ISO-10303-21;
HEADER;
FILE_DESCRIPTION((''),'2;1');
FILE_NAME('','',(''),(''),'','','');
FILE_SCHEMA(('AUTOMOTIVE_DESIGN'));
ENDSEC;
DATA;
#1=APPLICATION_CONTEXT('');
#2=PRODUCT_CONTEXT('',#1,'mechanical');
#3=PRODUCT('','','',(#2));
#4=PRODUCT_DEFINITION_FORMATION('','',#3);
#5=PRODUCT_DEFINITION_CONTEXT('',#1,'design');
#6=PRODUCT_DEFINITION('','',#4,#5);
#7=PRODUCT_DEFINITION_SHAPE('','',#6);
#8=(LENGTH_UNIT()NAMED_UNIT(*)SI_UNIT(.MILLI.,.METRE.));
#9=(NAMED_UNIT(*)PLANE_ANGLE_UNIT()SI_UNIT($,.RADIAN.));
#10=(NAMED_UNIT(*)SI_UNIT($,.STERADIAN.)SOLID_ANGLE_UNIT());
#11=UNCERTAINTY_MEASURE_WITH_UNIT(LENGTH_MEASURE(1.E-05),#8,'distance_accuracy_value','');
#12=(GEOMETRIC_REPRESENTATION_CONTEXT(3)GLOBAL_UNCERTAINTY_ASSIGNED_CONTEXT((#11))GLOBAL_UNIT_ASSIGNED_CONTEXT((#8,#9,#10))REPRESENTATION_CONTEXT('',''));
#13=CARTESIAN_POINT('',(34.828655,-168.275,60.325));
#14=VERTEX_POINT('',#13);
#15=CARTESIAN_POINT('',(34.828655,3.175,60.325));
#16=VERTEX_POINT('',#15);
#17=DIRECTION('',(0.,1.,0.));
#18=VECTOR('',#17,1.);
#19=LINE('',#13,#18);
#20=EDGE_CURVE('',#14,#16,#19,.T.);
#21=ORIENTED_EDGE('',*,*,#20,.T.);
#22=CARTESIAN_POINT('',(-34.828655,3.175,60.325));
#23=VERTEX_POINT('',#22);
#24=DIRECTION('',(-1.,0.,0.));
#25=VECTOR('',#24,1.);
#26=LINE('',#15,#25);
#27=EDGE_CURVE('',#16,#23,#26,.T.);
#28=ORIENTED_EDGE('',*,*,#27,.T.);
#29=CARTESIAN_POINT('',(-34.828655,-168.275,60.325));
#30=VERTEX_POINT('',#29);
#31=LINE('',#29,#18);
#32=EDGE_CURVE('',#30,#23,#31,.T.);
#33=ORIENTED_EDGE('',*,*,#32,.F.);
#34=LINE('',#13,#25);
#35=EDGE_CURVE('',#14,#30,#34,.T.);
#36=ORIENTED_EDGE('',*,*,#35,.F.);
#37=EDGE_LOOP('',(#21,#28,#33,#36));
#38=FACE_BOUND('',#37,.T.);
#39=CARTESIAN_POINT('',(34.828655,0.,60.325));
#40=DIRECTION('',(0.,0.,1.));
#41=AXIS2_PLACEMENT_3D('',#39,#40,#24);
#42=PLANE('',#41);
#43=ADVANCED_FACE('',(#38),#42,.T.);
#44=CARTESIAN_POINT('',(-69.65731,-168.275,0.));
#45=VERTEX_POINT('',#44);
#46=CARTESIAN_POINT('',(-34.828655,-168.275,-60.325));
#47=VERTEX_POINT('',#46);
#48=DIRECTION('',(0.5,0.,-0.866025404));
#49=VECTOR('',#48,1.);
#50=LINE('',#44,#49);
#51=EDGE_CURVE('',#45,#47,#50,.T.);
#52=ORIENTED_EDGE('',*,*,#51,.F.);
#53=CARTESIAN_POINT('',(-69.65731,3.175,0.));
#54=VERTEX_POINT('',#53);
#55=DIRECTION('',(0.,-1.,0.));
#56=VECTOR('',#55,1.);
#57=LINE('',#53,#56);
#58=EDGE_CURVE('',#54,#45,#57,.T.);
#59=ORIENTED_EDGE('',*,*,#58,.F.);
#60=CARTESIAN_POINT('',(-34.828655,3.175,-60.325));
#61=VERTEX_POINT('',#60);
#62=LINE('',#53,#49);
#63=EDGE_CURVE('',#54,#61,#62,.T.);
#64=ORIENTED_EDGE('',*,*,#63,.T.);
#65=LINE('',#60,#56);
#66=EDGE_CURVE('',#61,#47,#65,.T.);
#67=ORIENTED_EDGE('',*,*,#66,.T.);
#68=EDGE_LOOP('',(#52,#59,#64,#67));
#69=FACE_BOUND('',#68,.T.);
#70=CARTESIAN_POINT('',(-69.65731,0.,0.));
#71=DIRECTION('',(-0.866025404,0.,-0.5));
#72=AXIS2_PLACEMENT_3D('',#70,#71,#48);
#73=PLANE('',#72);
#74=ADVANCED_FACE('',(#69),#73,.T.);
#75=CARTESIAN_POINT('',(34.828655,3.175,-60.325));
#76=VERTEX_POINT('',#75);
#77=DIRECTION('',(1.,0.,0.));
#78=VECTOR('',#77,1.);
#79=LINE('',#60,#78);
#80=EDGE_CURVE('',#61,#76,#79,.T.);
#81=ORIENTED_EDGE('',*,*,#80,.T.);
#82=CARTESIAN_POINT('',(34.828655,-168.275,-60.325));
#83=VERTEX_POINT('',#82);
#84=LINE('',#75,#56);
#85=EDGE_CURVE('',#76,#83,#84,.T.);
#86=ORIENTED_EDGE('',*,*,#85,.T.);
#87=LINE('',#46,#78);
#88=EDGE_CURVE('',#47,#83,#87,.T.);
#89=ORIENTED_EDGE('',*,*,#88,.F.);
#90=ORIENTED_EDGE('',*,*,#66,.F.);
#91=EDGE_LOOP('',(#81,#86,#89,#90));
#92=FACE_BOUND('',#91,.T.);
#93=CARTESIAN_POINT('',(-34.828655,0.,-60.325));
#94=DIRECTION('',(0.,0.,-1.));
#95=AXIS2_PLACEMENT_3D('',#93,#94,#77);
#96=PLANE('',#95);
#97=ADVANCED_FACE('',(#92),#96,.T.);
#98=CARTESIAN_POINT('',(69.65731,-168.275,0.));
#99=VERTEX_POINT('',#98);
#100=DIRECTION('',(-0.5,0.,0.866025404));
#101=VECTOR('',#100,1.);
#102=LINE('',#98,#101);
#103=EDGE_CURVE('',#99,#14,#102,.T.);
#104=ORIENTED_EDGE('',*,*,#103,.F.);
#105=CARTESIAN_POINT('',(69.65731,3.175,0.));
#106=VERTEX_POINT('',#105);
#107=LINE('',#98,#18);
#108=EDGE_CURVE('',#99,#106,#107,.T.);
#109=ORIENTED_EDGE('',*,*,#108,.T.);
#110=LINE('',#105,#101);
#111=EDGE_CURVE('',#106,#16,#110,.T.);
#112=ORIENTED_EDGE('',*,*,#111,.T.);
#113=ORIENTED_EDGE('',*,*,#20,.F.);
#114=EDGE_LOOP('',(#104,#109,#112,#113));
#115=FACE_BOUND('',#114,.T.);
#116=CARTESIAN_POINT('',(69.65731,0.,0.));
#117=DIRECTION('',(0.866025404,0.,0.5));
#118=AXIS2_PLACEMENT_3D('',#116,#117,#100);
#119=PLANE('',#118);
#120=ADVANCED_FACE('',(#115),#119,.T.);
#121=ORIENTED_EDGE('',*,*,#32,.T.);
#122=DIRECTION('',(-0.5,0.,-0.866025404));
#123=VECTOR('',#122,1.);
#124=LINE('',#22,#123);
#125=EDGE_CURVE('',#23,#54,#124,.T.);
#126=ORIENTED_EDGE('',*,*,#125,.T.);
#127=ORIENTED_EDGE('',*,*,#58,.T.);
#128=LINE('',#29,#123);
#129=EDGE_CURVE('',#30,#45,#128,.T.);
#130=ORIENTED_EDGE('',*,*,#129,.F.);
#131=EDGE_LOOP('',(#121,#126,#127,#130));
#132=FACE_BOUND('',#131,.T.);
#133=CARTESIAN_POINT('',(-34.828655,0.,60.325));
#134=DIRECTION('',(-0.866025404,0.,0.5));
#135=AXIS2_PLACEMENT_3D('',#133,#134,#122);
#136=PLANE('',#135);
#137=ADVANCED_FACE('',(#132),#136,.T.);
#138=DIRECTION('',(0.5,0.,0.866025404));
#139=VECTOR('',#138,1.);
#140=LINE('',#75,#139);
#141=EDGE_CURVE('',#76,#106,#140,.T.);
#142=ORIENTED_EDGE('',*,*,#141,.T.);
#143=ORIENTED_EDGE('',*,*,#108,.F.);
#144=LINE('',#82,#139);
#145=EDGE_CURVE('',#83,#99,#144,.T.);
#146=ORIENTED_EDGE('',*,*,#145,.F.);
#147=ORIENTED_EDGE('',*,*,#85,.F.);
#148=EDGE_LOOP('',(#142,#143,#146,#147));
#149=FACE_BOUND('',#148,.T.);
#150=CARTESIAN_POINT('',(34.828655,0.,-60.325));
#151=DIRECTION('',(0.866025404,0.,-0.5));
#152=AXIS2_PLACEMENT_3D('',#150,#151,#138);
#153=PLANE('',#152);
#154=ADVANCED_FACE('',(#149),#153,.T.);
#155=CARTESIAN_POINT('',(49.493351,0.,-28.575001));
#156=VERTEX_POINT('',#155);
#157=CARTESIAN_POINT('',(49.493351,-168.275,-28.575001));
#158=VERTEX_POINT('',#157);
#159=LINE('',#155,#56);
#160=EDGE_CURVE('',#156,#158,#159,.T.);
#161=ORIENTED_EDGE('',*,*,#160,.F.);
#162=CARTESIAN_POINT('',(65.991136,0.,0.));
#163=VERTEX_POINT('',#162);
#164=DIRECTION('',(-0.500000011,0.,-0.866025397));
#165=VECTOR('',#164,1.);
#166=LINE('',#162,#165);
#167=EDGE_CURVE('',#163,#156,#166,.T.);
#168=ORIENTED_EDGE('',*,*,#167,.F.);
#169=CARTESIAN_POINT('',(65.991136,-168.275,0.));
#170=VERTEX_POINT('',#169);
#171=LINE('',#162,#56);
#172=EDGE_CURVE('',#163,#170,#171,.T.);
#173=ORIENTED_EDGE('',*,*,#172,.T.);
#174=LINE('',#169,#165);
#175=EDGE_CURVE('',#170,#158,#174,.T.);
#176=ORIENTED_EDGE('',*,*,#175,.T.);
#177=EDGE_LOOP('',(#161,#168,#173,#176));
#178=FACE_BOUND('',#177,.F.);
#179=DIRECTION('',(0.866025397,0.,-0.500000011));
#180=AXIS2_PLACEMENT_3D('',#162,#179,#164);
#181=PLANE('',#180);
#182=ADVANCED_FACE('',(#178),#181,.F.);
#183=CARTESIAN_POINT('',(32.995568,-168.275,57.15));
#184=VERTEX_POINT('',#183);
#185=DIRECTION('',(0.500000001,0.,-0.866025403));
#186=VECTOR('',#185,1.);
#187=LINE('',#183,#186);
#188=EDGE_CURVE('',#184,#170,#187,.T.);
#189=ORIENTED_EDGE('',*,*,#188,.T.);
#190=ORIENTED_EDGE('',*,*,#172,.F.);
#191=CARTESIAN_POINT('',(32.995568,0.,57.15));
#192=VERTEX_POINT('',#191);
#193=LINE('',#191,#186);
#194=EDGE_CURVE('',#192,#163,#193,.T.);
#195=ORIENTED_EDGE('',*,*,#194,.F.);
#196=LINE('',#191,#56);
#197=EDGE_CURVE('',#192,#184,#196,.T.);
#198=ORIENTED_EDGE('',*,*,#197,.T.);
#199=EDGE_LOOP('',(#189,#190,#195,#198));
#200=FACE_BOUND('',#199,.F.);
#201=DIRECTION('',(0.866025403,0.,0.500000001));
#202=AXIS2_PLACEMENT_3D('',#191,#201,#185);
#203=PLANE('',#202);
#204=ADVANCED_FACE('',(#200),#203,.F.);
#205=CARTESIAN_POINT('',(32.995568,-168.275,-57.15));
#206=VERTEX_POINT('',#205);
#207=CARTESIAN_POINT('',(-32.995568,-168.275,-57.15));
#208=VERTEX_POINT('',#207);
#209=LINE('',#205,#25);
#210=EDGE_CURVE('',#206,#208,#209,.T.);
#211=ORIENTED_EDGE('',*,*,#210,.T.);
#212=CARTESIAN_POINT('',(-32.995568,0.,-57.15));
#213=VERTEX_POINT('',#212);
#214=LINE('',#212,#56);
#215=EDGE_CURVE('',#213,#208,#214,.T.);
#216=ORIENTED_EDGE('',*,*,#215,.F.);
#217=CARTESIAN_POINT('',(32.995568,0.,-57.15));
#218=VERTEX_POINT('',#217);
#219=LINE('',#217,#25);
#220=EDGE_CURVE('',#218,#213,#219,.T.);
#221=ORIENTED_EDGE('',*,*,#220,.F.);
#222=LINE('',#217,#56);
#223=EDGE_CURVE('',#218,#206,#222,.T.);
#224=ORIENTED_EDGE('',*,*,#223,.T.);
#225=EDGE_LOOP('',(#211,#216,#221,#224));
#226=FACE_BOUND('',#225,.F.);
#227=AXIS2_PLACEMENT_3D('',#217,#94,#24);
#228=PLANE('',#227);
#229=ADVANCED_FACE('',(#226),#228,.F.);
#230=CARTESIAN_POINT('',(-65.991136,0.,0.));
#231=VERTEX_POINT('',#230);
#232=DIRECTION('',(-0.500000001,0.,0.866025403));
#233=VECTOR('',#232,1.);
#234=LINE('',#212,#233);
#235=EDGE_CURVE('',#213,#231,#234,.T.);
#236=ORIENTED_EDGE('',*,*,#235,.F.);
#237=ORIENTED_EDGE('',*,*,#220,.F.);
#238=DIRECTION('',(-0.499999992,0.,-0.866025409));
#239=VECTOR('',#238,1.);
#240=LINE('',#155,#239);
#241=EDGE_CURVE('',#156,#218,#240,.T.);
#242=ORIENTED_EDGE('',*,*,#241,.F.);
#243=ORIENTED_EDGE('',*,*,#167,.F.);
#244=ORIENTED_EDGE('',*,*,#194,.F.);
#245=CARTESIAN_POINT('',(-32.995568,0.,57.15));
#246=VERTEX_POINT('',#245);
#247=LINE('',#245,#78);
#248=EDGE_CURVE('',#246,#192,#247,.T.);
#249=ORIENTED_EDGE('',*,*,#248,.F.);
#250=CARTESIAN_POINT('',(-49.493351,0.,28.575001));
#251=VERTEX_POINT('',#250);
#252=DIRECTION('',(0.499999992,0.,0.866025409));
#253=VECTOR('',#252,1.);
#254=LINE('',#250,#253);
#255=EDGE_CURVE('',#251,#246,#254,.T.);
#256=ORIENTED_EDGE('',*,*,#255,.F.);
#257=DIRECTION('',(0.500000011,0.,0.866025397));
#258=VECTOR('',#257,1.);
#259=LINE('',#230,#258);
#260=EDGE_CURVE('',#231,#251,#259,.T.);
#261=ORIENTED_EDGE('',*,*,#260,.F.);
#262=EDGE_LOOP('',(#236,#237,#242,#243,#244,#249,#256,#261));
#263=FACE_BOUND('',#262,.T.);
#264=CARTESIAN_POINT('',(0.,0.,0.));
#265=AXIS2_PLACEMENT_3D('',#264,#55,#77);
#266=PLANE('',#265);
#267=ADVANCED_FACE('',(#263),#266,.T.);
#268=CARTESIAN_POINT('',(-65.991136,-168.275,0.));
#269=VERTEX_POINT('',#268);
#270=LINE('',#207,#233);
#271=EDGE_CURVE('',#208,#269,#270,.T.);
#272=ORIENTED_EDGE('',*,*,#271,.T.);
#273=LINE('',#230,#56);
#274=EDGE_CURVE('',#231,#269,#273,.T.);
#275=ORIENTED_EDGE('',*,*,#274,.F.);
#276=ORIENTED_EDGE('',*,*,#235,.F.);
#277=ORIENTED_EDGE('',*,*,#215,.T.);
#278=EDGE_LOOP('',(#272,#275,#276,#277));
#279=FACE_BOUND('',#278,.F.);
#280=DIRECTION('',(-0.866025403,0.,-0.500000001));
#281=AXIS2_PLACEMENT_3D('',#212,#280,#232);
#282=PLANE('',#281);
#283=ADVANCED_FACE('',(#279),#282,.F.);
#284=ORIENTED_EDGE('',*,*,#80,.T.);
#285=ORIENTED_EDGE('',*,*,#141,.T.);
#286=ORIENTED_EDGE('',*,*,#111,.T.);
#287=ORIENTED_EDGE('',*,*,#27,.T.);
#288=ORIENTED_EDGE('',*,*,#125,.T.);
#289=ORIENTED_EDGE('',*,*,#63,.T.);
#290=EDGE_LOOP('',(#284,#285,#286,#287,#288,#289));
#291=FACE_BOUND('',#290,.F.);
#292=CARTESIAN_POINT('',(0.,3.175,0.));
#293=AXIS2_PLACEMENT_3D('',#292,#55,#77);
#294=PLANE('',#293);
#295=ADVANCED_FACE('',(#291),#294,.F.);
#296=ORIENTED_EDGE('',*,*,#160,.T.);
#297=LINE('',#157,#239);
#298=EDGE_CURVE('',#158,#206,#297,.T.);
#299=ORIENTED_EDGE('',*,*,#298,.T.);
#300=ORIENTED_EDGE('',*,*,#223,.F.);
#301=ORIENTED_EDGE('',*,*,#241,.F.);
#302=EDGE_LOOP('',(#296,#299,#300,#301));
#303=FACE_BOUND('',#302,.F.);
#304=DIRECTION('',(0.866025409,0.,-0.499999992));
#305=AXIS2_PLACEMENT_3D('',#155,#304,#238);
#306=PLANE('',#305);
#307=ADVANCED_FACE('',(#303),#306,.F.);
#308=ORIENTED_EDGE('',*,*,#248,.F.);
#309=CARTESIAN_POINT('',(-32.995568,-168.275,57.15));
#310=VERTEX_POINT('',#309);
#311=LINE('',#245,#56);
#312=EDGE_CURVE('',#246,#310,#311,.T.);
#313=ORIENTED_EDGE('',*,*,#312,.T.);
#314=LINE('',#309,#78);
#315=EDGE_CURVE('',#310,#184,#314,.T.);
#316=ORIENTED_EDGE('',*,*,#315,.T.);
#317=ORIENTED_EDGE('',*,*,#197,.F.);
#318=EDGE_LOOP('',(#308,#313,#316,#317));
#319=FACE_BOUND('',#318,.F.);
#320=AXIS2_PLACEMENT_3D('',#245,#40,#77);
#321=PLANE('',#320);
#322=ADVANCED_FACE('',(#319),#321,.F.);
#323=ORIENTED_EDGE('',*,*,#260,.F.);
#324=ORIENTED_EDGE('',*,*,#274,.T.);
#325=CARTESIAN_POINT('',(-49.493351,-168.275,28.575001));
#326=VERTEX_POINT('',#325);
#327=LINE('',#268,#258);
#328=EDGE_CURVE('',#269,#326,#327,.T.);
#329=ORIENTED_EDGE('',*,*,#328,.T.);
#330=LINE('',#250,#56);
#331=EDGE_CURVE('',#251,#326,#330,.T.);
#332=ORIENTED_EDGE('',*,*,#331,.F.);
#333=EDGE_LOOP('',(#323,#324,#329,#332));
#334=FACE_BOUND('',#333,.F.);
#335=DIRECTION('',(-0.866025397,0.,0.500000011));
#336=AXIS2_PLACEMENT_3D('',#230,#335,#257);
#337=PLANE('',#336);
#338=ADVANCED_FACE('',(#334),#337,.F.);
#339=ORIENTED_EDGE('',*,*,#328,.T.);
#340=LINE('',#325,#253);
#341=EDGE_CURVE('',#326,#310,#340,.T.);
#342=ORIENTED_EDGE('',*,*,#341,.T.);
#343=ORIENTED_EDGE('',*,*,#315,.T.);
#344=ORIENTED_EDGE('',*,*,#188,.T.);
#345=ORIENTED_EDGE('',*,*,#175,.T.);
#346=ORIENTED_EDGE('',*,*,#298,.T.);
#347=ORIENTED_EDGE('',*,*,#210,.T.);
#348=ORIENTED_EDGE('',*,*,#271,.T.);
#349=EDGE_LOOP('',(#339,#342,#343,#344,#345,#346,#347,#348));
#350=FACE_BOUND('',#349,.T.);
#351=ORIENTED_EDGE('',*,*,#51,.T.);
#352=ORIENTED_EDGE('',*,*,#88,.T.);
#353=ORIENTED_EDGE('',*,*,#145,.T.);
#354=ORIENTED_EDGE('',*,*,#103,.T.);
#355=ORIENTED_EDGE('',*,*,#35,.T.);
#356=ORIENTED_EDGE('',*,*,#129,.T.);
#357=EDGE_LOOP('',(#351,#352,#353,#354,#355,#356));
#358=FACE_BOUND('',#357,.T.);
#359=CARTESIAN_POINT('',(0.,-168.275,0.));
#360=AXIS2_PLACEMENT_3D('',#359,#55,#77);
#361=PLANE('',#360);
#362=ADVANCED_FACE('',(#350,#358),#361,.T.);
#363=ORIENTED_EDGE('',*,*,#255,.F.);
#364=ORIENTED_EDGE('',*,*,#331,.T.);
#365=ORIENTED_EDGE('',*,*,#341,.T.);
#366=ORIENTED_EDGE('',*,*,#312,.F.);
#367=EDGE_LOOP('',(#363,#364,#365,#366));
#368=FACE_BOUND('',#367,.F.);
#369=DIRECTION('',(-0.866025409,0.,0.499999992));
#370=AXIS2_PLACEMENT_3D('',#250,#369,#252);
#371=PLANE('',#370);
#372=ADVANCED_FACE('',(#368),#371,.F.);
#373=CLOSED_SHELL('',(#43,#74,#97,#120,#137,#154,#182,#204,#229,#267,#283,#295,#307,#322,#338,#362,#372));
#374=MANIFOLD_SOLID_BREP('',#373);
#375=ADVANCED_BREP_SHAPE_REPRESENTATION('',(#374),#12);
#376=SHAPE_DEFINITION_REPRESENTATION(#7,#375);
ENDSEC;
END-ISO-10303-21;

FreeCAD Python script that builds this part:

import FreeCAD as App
import Part
import Sketcher
from FreeCAD import Vector
Q = App.Units.Quantity


def add_polygon(sketch, points):
    """Adds a closed chain of lines whose ends are joined by coincident constraints."""
    first, n = sketch.GeometryCount, len(points)
    for a, b in zip(points, points[1:] + points[:1]):
        sketch.addGeometry(Part.LineSegment(App.Vector(*a, 0), App.Vector(*b, 0)), False)
    for i in range(n):
        sketch.addConstraint(Sketcher.Constraint("Coincident", first + i, 2, first + (i + 1) % n, 1))

doc = App.newDocument("Part")
body = doc.addObject("PartDesign::Body", "Body")

# Sketch on XZ plane
sketch1 = doc.addObject("Sketcher::SketchObject", "Sketch")
body.addObject(sketch1)
sketch1.AttachmentSupport = (doc.XZ_Plane, [""])
sketch1.MapMode = "FlatFace"
add_polygon(sketch1, [(35, 60), (-35, 60), (-70, 0), (-35, -60), (35, -60), (70, 0)])  # lines 0-5
add_polygon(sketch1, [(-33, 57), (33, 57), (66, 0), (49, -29), (33, -57), (-33, -57), (-66, 0), (-49, 29)])  # lines 6-13
sketch1.addConstraint(Sketcher.Constraint("Horizontal", 0))
sketch1.addConstraint(Sketcher.Constraint("Horizontal", 3))
sketch1.addConstraint(Sketcher.Constraint("Horizontal", 6))
sketch1.addConstraint(Sketcher.Constraint("Horizontal", 10))
sketch1.addConstraint(Sketcher.Constraint("Symmetric", 0, 2, 3, 2, -1, 1))
sketch1.addConstraint(Sketcher.Constraint("Symmetric", 1, 2, 4, 2, -1, 1))
sketch1.addConstraint(Sketcher.Constraint("Symmetric", 6, 2, 10, 2, -1, 1))
sketch1.addConstraint(Sketcher.Constraint("Symmetric", 7, 2, 11, 2, -1, 1))
sketch1.addConstraint(Sketcher.Constraint("Symmetric", 8, 2, 12, 2, -1, 1))
sketch1.addConstraint(Sketcher.Constraint("PointOnObject", 1, 2, -1))
sketch1.addConstraint(Sketcher.Constraint("PointOnObject", 7, 2, -1))
sketch1.addConstraint(Sketcher.Constraint("Parallel", 2, 5))
sketch1.addConstraint(Sketcher.Constraint("Parallel", 5, 7))
sketch1.addConstraint(Sketcher.Constraint("Parallel", 4, 8))
sketch1.addConstraint(Sketcher.Constraint("Parallel", 8, 9))
sketch1.addConstraint(Sketcher.Constraint("Parallel", 12, 13))
sketch1.addConstraint(Sketcher.Constraint("Vertical", 0, 2, 2, 2))
sketch1.addConstraint(Sketcher.Constraint("Angle", 1, Q("-120 deg")))
sketch1.addConstraint(Sketcher.Constraint("DistanceY", -1, 1, 6, 2, Q("2.25 in")))
sketch1.addConstraint(Sketcher.Constraint("DistanceY", 2, 2, 0, 2, Q("4.75 in")))
sketch1.addConstraint(Sketcher.Constraint("DistanceY", 3, 2, 8, 2, Q("1.25 in")))
sketch1.addConstraint(Sketcher.Constraint("DistanceX", 0, 2, 0, 1, Q("69.65731 mm")))
sketch1.addConstraint(Sketcher.Constraint("DistanceX", 6, 1, 6, 2, Q("65.991136 mm")))
pad1 = doc.addObject("PartDesign::Pad", "Pad")
body.addObject(pad1)
pad1.Profile = sketch1
pad1.Length = Q("6.625 in")

# Sketch on XZ plane
sketch2 = doc.addObject("Sketcher::SketchObject", "Sketch001")
body.addObject(sketch2)
sketch2.AttachmentSupport = (doc.XZ_Plane, [""])
sketch2.MapMode = "FlatFace"
add_polygon(sketch2, [(-35, 60), (-70, 0), (-35, -60), (35, -60), (70, 0), (35, 60)])  # lines 0-5
sketch2.addConstraint(Sketcher.Constraint("Horizontal", 2))
sketch2.addConstraint(Sketcher.Constraint("Horizontal", 5))
sketch2.addConstraint(Sketcher.Constraint("Symmetric", 0, 2, 3, 2, -1, 1))
sketch2.addConstraint(Sketcher.Constraint("Symmetric", 1, 2, 4, 2, -1, 1))
sketch2.addConstraint(Sketcher.Constraint("PointOnObject", 0, 2, -1))
sketch2.addConstraint(Sketcher.Constraint("Parallel", 0, 3))
sketch2.addConstraint(Sketcher.Constraint("Vertical", 2, 2, 4, 2))
sketch2.addConstraint(Sketcher.Constraint("Angle", 0, Q("-120 deg")))
sketch2.addConstraint(Sketcher.Constraint("DistanceY", 2, 2, 4, 2, Q("4.75 in")))
sketch2.addConstraint(Sketcher.Constraint("DistanceX", 2, 1, 2, 2, Q("69.65731 mm")))
pad2 = doc.addObject("PartDesign::Pad", "Pad001")
body.addObject(pad2)
pad2.Profile = sketch2
pad2.Length = Q("0.125 in")
pad2.Reversed = True

doc.recompute()
